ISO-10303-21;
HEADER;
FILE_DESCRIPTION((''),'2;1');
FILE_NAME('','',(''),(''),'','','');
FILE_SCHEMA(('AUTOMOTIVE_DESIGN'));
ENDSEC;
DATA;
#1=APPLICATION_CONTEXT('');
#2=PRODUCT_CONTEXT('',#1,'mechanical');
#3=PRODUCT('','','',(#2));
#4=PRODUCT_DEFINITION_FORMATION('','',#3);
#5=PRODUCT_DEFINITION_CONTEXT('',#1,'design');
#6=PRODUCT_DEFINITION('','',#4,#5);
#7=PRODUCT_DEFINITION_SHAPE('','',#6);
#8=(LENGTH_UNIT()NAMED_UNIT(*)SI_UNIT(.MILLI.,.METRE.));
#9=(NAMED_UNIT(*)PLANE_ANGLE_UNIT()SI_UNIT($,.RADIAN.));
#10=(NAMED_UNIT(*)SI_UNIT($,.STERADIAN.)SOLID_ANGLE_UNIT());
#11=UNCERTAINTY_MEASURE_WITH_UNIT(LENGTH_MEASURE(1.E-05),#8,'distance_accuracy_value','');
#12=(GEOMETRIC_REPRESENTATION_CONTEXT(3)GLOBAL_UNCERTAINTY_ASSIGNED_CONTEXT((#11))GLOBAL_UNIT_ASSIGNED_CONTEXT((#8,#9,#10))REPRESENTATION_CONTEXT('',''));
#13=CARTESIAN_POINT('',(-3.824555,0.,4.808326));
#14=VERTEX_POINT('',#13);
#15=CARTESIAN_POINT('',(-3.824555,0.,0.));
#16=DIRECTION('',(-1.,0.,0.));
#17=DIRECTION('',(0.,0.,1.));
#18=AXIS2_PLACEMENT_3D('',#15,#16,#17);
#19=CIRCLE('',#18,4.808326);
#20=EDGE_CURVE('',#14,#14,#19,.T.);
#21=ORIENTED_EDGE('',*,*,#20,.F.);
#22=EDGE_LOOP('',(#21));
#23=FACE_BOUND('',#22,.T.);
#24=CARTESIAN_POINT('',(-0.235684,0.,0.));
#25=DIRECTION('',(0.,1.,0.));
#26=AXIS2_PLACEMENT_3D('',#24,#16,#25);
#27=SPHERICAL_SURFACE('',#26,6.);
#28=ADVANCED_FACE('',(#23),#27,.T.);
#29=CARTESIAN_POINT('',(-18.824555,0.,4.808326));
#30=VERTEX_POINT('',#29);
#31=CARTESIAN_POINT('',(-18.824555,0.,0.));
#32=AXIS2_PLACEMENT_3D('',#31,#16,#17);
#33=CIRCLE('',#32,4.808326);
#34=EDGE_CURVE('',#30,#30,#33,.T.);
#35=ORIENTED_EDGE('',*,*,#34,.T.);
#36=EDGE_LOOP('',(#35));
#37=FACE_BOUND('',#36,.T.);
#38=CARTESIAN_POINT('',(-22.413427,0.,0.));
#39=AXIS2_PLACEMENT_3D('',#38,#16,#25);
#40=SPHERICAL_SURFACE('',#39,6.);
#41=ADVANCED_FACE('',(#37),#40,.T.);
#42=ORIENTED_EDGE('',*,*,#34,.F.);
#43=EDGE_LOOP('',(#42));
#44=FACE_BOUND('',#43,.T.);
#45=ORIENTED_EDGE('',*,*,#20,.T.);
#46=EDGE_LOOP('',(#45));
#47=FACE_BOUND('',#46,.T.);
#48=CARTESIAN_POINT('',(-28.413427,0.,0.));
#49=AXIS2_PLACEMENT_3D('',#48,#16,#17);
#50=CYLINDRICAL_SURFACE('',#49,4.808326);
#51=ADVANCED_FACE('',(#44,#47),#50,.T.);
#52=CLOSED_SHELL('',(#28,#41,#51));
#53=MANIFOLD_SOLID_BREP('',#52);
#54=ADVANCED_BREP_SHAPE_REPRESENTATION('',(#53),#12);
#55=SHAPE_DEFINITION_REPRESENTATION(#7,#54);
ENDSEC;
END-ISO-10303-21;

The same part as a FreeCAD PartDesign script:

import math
import FreeCAD as App
import Part
import Sketcher
from FreeCAD import Vector

doc = App.newDocument("Part")
body = doc.addObject("PartDesign::Body", "Body")

sketch1 = body.newObject("Sketcher::SketchObject", "Sketch")
sketch1.AttachmentSupport = (doc.getObject("XY_Plane"), [""])
sketch1.MapMode = "FlatFace"
sketch1.addGeometry([
    Part.LineSegment(Vector(-4, 5, 0), Vector(-19, 5, 0)),
    Part.ArcOfCircle(Part.Circle(Vector(-22, 0, 0), Vector(0, 0, 1), 6), math.radians(53), math.radians(180)),
    Part.LineSegment(Vector(-28, 0, 0), Vector(6, 0, 0)),
    Part.ArcOfCircle(Part.Circle(Vector(0, 0, 0), Vector(0, 0, 1), 6), math.radians(0), math.radians(127)),
], False)
sketch1.addConstraint([
    Sketcher.Constraint("Coincident", 0, 2, 1, 1),
    Sketcher.Constraint("Coincident", 1, 2, 2, 1),
    Sketcher.Constraint("Coincident", 2, 2, 3, 1),
    Sketcher.Constraint("Coincident", 3, 2, 0, 1),
    Sketcher.Constraint("Horizontal", 0),
    Sketcher.Constraint("Horizontal", 2),
    Sketcher.Constraint("Equal", 1, 3),
    Sketcher.Constraint("PointOnObject", 1, 3, -1),
    Sketcher.Constraint("PointOnObject", 3, 3, -1),
    Sketcher.Constraint("PointOnObject", 1, 2, -1),
    Sketcher.Constraint("Radius", 1, 6.0),
    Sketcher.Constraint("DistanceX", 0, 2, 0, 1, 15.0),
    Sketcher.Constraint("DistanceX", 2, 1, 2, 2, 34.177743),
    Sketcher.Constraint("DistanceX", 1, 3, -1, 1, 22.413427),
])
revolution = body.newObject("PartDesign::Revolution", "Revolution")
revolution.Profile = sketch1
revolution.ReferenceAxis = (sketch1, ["H_Axis"])
revolution.Angle = 360

doc.recompute()
